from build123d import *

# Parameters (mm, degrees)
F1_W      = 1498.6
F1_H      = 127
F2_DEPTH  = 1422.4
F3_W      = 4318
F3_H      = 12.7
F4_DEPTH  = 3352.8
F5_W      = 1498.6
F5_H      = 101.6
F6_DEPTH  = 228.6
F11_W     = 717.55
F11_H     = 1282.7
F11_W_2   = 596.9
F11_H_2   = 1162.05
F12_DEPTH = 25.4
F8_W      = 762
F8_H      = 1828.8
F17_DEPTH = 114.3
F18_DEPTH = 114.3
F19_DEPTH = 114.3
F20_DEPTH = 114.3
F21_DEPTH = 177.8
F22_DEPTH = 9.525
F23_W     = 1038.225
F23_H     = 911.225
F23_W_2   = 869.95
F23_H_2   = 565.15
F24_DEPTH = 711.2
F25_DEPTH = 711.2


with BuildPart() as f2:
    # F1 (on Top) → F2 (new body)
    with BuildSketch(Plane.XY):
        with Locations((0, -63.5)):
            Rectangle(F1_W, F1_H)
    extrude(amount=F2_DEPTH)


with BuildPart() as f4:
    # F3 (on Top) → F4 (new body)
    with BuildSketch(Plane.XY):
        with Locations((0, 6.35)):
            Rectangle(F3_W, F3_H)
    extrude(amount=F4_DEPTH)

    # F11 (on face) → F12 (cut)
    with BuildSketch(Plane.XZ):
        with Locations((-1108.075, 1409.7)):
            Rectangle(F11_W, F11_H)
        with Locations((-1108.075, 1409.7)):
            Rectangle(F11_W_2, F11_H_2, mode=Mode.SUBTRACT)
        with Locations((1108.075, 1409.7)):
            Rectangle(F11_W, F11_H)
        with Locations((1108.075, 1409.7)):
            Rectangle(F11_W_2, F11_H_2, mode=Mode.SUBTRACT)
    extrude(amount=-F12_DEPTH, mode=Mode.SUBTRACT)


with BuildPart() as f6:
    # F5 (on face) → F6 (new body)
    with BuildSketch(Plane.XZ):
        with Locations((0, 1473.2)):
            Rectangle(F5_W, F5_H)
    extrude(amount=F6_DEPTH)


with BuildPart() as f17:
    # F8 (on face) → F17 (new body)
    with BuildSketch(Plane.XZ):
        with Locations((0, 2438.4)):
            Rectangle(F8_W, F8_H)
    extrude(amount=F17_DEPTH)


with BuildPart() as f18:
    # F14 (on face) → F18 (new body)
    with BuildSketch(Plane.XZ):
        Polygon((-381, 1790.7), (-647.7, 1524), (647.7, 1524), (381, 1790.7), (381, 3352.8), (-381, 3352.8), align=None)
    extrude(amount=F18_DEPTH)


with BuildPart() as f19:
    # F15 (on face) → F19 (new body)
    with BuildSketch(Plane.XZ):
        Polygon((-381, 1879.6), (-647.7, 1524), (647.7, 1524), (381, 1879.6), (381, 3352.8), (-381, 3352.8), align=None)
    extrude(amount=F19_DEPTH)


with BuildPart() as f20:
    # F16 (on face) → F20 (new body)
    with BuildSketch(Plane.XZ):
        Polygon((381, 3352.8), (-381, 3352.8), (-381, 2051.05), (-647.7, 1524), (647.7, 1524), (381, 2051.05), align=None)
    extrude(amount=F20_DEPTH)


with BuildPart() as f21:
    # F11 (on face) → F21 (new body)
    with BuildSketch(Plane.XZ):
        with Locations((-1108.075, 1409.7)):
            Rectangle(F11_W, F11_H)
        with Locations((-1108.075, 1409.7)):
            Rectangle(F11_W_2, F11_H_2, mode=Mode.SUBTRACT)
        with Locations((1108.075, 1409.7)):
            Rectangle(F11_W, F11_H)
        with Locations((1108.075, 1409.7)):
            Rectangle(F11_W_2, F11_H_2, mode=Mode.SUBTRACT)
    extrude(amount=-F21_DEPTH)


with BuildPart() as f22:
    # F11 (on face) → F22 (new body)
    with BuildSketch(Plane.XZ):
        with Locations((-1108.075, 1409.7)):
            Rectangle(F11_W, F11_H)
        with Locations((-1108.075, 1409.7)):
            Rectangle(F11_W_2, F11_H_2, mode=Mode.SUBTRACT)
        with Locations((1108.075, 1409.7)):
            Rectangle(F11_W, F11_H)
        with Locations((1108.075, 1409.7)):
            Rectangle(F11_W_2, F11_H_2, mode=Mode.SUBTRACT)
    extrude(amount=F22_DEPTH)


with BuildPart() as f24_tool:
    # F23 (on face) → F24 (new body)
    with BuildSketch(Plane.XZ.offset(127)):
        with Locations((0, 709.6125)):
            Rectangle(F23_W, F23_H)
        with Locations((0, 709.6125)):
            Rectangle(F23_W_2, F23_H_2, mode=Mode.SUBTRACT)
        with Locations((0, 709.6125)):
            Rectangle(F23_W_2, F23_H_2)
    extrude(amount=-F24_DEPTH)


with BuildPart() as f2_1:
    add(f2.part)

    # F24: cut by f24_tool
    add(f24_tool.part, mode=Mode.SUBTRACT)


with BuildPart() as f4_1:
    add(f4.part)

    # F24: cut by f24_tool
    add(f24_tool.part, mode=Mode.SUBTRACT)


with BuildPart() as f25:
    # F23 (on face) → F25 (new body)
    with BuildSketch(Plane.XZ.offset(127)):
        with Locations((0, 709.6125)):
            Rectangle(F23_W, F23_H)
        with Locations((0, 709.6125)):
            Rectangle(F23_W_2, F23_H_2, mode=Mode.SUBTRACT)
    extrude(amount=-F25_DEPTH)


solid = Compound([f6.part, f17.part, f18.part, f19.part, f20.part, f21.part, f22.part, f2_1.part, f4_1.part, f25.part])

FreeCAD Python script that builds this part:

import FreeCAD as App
import Part
import Sketcher

V = App.Vector
Q = App.Units.Quantity

doc = App.newDocument("Part")
body = doc.addObject("PartDesign::Body", "Body")

# Sketch on XY plane
sketch1 = body.newObject("Sketcher::SketchObject", "Sketch")
sketch1.AttachmentSupport = (doc.getObject("XY_Plane"), [""])
sketch1.MapMode = "FlatFace"
sketch1.addGeometry([
    Part.LineSegment(V(-749.3, 0, 0), V(-749.3, -127, 0)),
    Part.LineSegment(V(-749.3, -127, 0), V(749.3, -127, 0)),
    Part.LineSegment(V(749.3, -127, 0), V(749.3, 0, 0)),
    Part.LineSegment(V(749.3, 0, 0), V(-749.3, 0, 0)),
], False)
sketch1.addConstraint([
    Sketcher.Constraint("Coincident", 0, 2, 1, 1),
    Sketcher.Constraint("Coincident", 1, 2, 2, 1),
    Sketcher.Constraint("Coincident", 2, 2, 3, 1),
    Sketcher.Constraint("Coincident", 3, 2, 0, 1),
    Sketcher.Constraint("Vertical", 0),
    Sketcher.Constraint("Horizontal", 1),
    Sketcher.Constraint("Vertical", 2),
    Sketcher.Constraint("Horizontal", 3),
    Sketcher.Constraint("Symmetric", 2, 2, 3, 2, -1, 1),
    Sketcher.Constraint("DistanceX", 1, 1, 1, 2, Q("59 in")),
    Sketcher.Constraint("DistanceY", 0, 2, 0, 1, Q("5 in")),
])
pad1 = body.newObject("PartDesign::Pad", "Pad")
pad1.Profile = sketch1
pad1.Length = Q("56 in")
body2 = doc.addObject("PartDesign::Body", "Body001")
body2.AllowCompound = True

# Sketch on XY plane
sketch2 = body2.newObject("Sketcher::SketchObject", "Sketch001")
sketch2.AttachmentSupport = (doc.getObject("XY_Plane001"), [""])
sketch2.MapMode = "FlatFace"
sketch2.addGeometry([
    Part.LineSegment(V(-2159, 12.7, 0), V(-2159, 0, 0)),
    Part.LineSegment(V(-2159, 0, 0), V(2159, 0, 0)),
    Part.LineSegment(V(2159, 0, 0), V(2159, 12.7, 0)),
    Part.LineSegment(V(2159, 12.7, 0), V(-2159, 12.7, 0)),
], False)
sketch2.addConstraint([
    Sketcher.Constraint("Coincident", 0, 2, 1, 1),
    Sketcher.Constraint("Coincident", 1, 2, 2, 1),
    Sketcher.Constraint("Coincident", 2, 2, 3, 1),
    Sketcher.Constraint("Coincident", 3, 2, 0, 1),
    Sketcher.Constraint("Vertical", 0),
    Sketcher.Constraint("Horizontal", 1),
    Sketcher.Constraint("Vertical", 2),
    Sketcher.Constraint("Horizontal", 3),
    Sketcher.Constraint("Symmetric", 0, 2, 1, 2, -1, 1),
    Sketcher.Constraint("DistanceX", 1, 1, 1, 2, Q("170 in")),
    Sketcher.Constraint("DistanceY", 0, 2, 0, 1, Q("0.5 in")),
])
pad2 = body2.newObject("PartDesign::Pad", "Pad001")
pad2.Profile = sketch2
pad2.Length = Q("132 in")

# Sketch on XZ plane
sketch3 = body2.newObject("Sketcher::SketchObject", "Sketch002")
sketch3.AttachmentSupport = (doc.getObject("XZ_Plane001"), [""])
sketch3.MapMode = "FlatFace"
sketch3.addGeometry([
    Part.LineSegment(V(-1466.85, 2051.05, 0), V(-1466.85, 768.35, 0)),  # 0
    Part.LineSegment(V(-1466.85, 768.35, 0), V(-749.3, 768.35, 0)),  # 1
    Part.LineSegment(V(-749.3, 768.35, 0), V(-749.3, 2051.05, 0)),  # 2
    Part.LineSegment(V(-749.3, 2051.05, 0), V(-1466.85, 2051.05, 0)),  # 3
    Part.LineSegment(V(-809.625, 828.675, 0), V(-1406.525, 828.675, 0)),  # 4
    Part.LineSegment(V(-1406.525, 828.675, 0), V(-1406.525, 1990.725, 0)),  # 5
    Part.LineSegment(V(-1406.525, 1990.725, 0), V(-809.625, 1990.725, 0)),  # 6
    Part.LineSegment(V(-809.625, 1990.725, 0), V(-809.625, 828.675, 0)),  # 7
    Part.LineSegment(V(749.3, 2051.05, 0), V(749.3, 768.35, 0)),  # 8
    Part.LineSegment(V(749.3, 768.35, 0), V(1466.85, 768.35, 0)),  # 9
    Part.LineSegment(V(1466.85, 768.35, 0), V(1466.85, 2051.05, 0)),  # 10
    Part.LineSegment(V(1466.85, 2051.05, 0), V(749.3, 2051.05, 0)),  # 11
    Part.LineSegment(V(1406.525, 828.675, 0), V(809.625, 828.675, 0)),  # 12
    Part.LineSegment(V(809.625, 828.675, 0), V(809.625, 1990.725, 0)),  # 13
    Part.LineSegment(V(809.625, 1990.725, 0), V(1406.525, 1990.725, 0)),  # 14
    Part.LineSegment(V(1406.525, 1990.725, 0), V(1406.525, 828.675, 0)),  # 15
], False)
sketch3.addConstraint([
    Sketcher.Constraint("Coincident", 0, 2, 1, 1),
    Sketcher.Constraint("Coincident", 1, 2, 2, 1),
    Sketcher.Constraint("Coincident", 2, 2, 3, 1),
    Sketcher.Constraint("Coincident", 3, 2, 0, 1),
    Sketcher.Constraint("Coincident", 4, 2, 5, 1),
    Sketcher.Constraint("Coincident", 5, 2, 6, 1),
    Sketcher.Constraint("Coincident", 6, 2, 7, 1),
    Sketcher.Constraint("Coincident", 7, 2, 4, 1),
    Sketcher.Constraint("Coincident", 8, 2, 9, 1),
    Sketcher.Constraint("Coincident", 9, 2, 10, 1),
    Sketcher.Constraint("Coincident", 10, 2, 11, 1),
    Sketcher.Constraint("Coincident", 11, 2, 8, 1),
    Sketcher.Constraint("Coincident", 12, 2, 13, 1),
    Sketcher.Constraint("Coincident", 13, 2, 14, 1),
    Sketcher.Constraint("Coincident", 14, 2, 15, 1),
    Sketcher.Constraint("Coincident", 15, 2, 12, 1),
    Sketcher.Constraint("Vertical", 0),
    Sketcher.Constraint("Horizontal", 1),
    Sketcher.Constraint("Vertical", 2),
    Sketcher.Constraint("Horizontal", 3),
    Sketcher.Constraint("Horizontal", 4),
    Sketcher.Constraint("Vertical", 5),
    Sketcher.Constraint("Horizontal", 6),
    Sketcher.Constraint("Vertical", 7),
    Sketcher.Constraint("Vertical", 8),
    Sketcher.Constraint("Horizontal", 9),
    Sketcher.Constraint("Vertical", 10),
    Sketcher.Constraint("Horizontal", 11),
    Sketcher.Constraint("Horizontal", 12),
    Sketcher.Constraint("Vertical", 13),
    Sketcher.Constraint("Horizontal", 14),
    Sketcher.Constraint("Vertical", 15),
    Sketcher.Constraint("Symmetric", 1, 2, 8, 2, -2),
    Sketcher.Constraint("Symmetric", 3, 2, 10, 2, -2),
    Sketcher.Constraint("Symmetric", 7, 2, 12, 2, -2),
    Sketcher.Constraint("Symmetric", 5, 2, 14, 2, -2),
    Sketcher.Constraint("DistanceX", 4, 2, 4, 1, Q("23.5 in")),
    Sketcher.Constraint("DistanceY", 0, 2, 0, 1, Q("50.5 in")),
    Sketcher.Constraint("DistanceX", 1, 2, 8, 2, Q("59 in")),
    Sketcher.Constraint("DistanceX", 1, 1, 1, 2, Q("28.25 in")),
    Sketcher.Constraint("DistanceY", 5, 1, 5, 2, Q("45.75 in")),
    Sketcher.Constraint("DistanceY", -1, 1, 0, 2, Q("30.25 in")),
    Sketcher.Constraint("DistanceX", 4, 2, -1, 1, Q("55.375 in")),
    Sketcher.Constraint("DistanceY", -1, 1, 4, 2, Q("32.625 in")),
])
pocket1 = body2.newObject("PartDesign::Pocket", "Pocket")
pocket1.Profile = sketch3
pocket1.Length = Q("1 in")
body3 = doc.addObject("PartDesign::Body", "Body002")

# Sketch on XZ plane
sketch4 = body3.newObject("Sketcher::SketchObject", "Sketch003")
sketch4.AttachmentSupport = (doc.getObject("XZ_Plane002"), [""])
sketch4.MapMode = "FlatFace"
sketch4.addGeometry([
    Part.LineSegment(V(-749.3, 1524, 0), V(-749.3, 1422.4, 0)),
    Part.LineSegment(V(-749.3, 1422.4, 0), V(749.3, 1422.4, 0)),
    Part.LineSegment(V(749.3, 1422.4, 0), V(749.3, 1524, 0)),
    Part.LineSegment(V(749.3, 1524, 0), V(-749.3, 1524, 0)),
], False)
sketch4.addConstraint([
    Sketcher.Constraint("Coincident", 0, 2, 1, 1),
    Sketcher.Constraint("Coincident", 1, 2, 2, 1),
    Sketcher.Constraint("Coincident", 2, 2, 3, 1),
    Sketcher.Constraint("Coincident", 3, 2, 0, 1),
    Sketcher.Constraint("Vertical", 0),
    Sketcher.Constraint("Horizontal", 1),
    Sketcher.Constraint("Vertical", 2),
    Sketcher.Constraint("Horizontal", 3),
    Sketcher.Constraint("DistanceX", 1, 1, 1, 2, Q("59 in")),
    Sketcher.Constraint("DistanceY", 0, 2, 0, 1, Q("4 in")),
    Sketcher.Constraint("DistanceY", -1, 1, 0, 2, Q("56 in")),
    Sketcher.Constraint("DistanceX", 0, 2, -1, 1, Q("29.5 in")),
])
pad3 = body3.newObject("PartDesign::Pad", "Pad002")
pad3.Profile = sketch4
pad3.Length = Q("9 in")
body4 = doc.addObject("PartDesign::Body", "Body003")

# Sketch on XZ plane
sketch5 = body4.newObject("Sketcher::SketchObject", "Sketch004")
sketch5.AttachmentSupport = (doc.getObject("XZ_Plane003"), [""])
sketch5.MapMode = "FlatFace"
sketch5.addGeometry([
    Part.LineSegment(V(-381, 3352.8, 0), V(-381, 1524, 0)),
    Part.LineSegment(V(-381, 1524, 0), V(381, 1524, 0)),
    Part.LineSegment(V(381, 1524, 0), V(381, 3352.8, 0)),
    Part.LineSegment(V(381, 3352.8, 0), V(-381, 3352.8, 0)),
], False)
sketch5.addConstraint([
    Sketcher.Constraint("Coincident", 0, 2, 1, 1),
    Sketcher.Constraint("Coincident", 1, 2, 2, 1),
    Sketcher.Constraint("Coincident", 2, 2, 3, 1),
    Sketcher.Constraint("Coincident", 3, 2, 0, 1),
    Sketcher.Constraint("Vertical", 0),
    Sketcher.Constraint("Horizontal", 1),
    Sketcher.Constraint("Vertical", 2),
    Sketcher.Constraint("Horizontal", 3),
    Sketcher.Constraint("DistanceX", 1, 1, 1, 2, Q("30 in")),
    Sketcher.Constraint("DistanceY", 0, 2, 0, 1, Q("72 in")),
    Sketcher.Constraint("DistanceX", 0, 2, -1, 1, Q("15 in")),
    Sketcher.Constraint("DistanceY", -1, 1, 0, 2, Q("60 in")),
])
pad4 = body4.newObject("PartDesign::Pad", "Pad003")
pad4.Profile = sketch5
pad4.Length = Q("4.5 in")
body5 = doc.addObject("PartDesign::Body", "Body004")

# Sketch on XZ plane
sketch6 = body5.newObject("Sketcher::SketchObject", "Sketch005")
sketch6.AttachmentSupport = (doc.getObject("XZ_Plane004"), [""])
sketch6.MapMode = "FlatFace"
sketch6.addGeometry([
    Part.LineSegment(V(-381, 1790.7, 0), V(-647.7, 1524, 0)),  # 0
    Part.LineSegment(V(-647.7, 1524, 0), V(647.7, 1524, 0)),  # 1
    Part.LineSegment(V(647.7, 1524, 0), V(381, 1790.7, 0)),  # 2
    Part.LineSegment(V(381, 1790.7, 0), V(381, 3352.8, 0)),  # 3
    Part.LineSegment(V(381, 3352.8, 0), V(-381, 3352.8, 0)),  # 4
    Part.LineSegment(V(-381, 3352.8, 0), V(-381, 1790.7, 0)),  # 5
], False)
sketch6.addConstraint([
    Sketcher.Constraint("Coincident", 0, 2, 1, 1),
    Sketcher.Constraint("Coincident", 1, 2, 2, 1),
    Sketcher.Constraint("Coincident", 2, 2, 3, 1),
    Sketcher.Constraint("Coincident", 3, 2, 4, 1),
    Sketcher.Constraint("Coincident", 4, 2, 5, 1),
    Sketcher.Constraint("Coincident", 5, 2, 0, 1),
    Sketcher.Constraint("Horizontal", 1),
    Sketcher.Constraint("Vertical", 3),
    Sketcher.Constraint("Horizontal", 4),
    Sketcher.Constraint("Vertical", 5),
    Sketcher.Constraint("Symmetric", 2, 2, 5, 2, -2),
    Sketcher.Constraint("Perpendicular", 0, 2),
    Sketcher.Constraint("Equal", 0, 2),
    Sketcher.Constraint("DistanceX", 1, 1, 1, 2, Q("51 in")),
    Sketcher.Constraint("DistanceX", 4, 2, 4, 1, Q("30 in")),
    Sketcher.Constraint("DistanceY", 3, 1, 3, 2, Q("61.5 in")),
    Sketcher.Constraint("DistanceY", -1, 1, 0, 2, Q("60 in")),
])
pad5 = body5.newObject("PartDesign::Pad", "Pad004")
pad5.Profile = sketch6
pad5.Length = Q("4.5 in")
body6 = doc.addObject("PartDesign::Body", "Body005")

# Sketch on XZ plane
sketch7 = body6.newObject("Sketcher::SketchObject", "Sketch006")
sketch7.AttachmentSupport = (doc.getObject("XZ_Plane005"), [""])
sketch7.MapMode = "FlatFace"
sketch7.addGeometry([
    Part.LineSegment(V(-381, 1879.6, 0), V(-647.7, 1524, 0)),  # 0
    Part.LineSegment(V(-647.7, 1524, 0), V(647.7, 1524, 0)),  # 1
    Part.LineSegment(V(647.7, 1524, 0), V(381, 1879.6, 0)),  # 2
    Part.LineSegment(V(381, 1879.6, 0), V(381, 3352.8, 0)),  # 3
    Part.LineSegment(V(381, 3352.8, 0), V(-381, 3352.8, 0)),  # 4
    Part.LineSegment(V(-381, 3352.8, 0), V(-381, 1879.6, 0)),  # 5
], False)
sketch7.addConstraint([
    Sketcher.Constraint("Coincident", 0, 2, 1, 1),
    Sketcher.Constraint("Coincident", 1, 2, 2, 1),
    Sketcher.Constraint("Coincident", 2, 2, 3, 1),
    Sketcher.Constraint("Coincident", 3, 2, 4, 1),
    Sketcher.Constraint("Coincident", 4, 2, 5, 1),
    Sketcher.Constraint("Coincident", 5, 2, 0, 1),
    Sketcher.Constraint("Horizontal", 1),
    Sketcher.Constraint("Vertical", 3),
    Sketcher.Constraint("Horizontal", 4),
    Sketcher.Constraint("Vertical", 5),
    Sketcher.Constraint("Symmetric", 2, 2, 5, 2, -2),
    Sketcher.Constraint("Equal", 0, 2),
    Sketcher.Constraint("DistanceX", 1, 1, 1, 2, Q("51 in")),
    Sketcher.Constraint("DistanceX", 4, 2, 4, 1, Q("30 in")),
    Sketcher.Constraint("DistanceY", 3, 1, 3, 2, Q("58 in")),
    Sketcher.Constraint("DistanceY", -1, 1, 0, 2, Q("60 in")),
    Sketcher.Constraint("DistanceY", -1, 1, 2, 2, Q("74 in")),
])
pad6 = body6.newObject("PartDesign::Pad", "Pad005")
pad6.Profile = sketch7
pad6.Length = Q("4.5 in")
body7 = doc.addObject("PartDesign::Body", "Body006")

# Sketch on XZ plane
sketch8 = body7.newObject("Sketcher::SketchObject", "Sketch007")
sketch8.AttachmentSupport = (doc.getObject("XZ_Plane006"), [""])
sketch8.MapMode = "FlatFace"
sketch8.addGeometry([
    Part.LineSegment(V(381, 3352.8, 0), V(-381, 3352.8, 0)),  # 0
    Part.LineSegment(V(-381, 3352.8, 0), V(-381, 2051.05, 0)),  # 1
    Part.LineSegment(V(-381, 2051.05, 0), V(-647.7, 1524, 0)),  # 2
    Part.LineSegment(V(-647.7, 1524, 0), V(647.7, 1524, 0)),  # 3
    Part.LineSegment(V(647.7, 1524, 0), V(381, 2051.05, 0)),  # 4
    Part.LineSegment(V(381, 2051.05, 0), V(381, 3352.8, 0)),  # 5
], False)
sketch8.addConstraint([
    Sketcher.Constraint("Coincident", 0, 2, 1, 1),
    Sketcher.Constraint("Coincident", 1, 2, 2, 1),
    Sketcher.Constraint("Coincident", 2, 2, 3, 1),
    Sketcher.Constraint("Coincident", 3, 2, 4, 1),
    Sketcher.Constraint("Coincident", 4, 2, 5, 1),
    Sketcher.Constraint("Coincident", 5, 2, 0, 1),
    Sketcher.Constraint("Horizontal", 0),
    Sketcher.Constraint("Vertical", 1),
    Sketcher.Constraint("Horizontal", 3),
    Sketcher.Constraint("Vertical", 5),
    Sketcher.Constraint("Symmetric", 1, 2, 4, 2, -2),
    Sketcher.Constraint("Equal", 2, 4),
    Sketcher.Constraint("DistanceX", 0, 2, 0, 1, Q("30 in")),
    Sketcher.Constraint("DistanceX", 3, 1, 3, 2, Q("51 in")),
    Sketcher.Constraint("DistanceY", -1, 1, 0, 2, Q("132 in")),
    Sketcher.Constraint("DistanceY", -1, 1, 2, 2, Q("60 in")),
    Sketcher.Constraint("DistanceY", 1, 2, 1, 1, Q("51.25 in")),
])
pad7 = body7.newObject("PartDesign::Pad", "Pad006")
pad7.Profile = sketch8
pad7.Length = Q("4.5 in")
body8 = doc.addObject("PartDesign::Body", "Body007")
body8.AllowCompound = True

# Sketch on XZ plane
sketch9 = body8.newObject("Sketcher::SketchObject", "Sketch008")
sketch9.AttachmentSupport = (doc.getObject("XZ_Plane007"), [""])
sketch9.MapMode = "FlatFace"
sketch9.addGeometry([
    Part.LineSegment(V(-1466.85, 2051.05, 0), V(-1466.85, 768.35, 0)),  # 0
    Part.LineSegment(V(-1466.85, 768.35, 0), V(-749.3, 768.35, 0)),  # 1
    Part.LineSegment(V(-749.3, 768.35, 0), V(-749.3, 2051.05, 0)),  # 2
    Part.LineSegment(V(-749.3, 2051.05, 0), V(-1466.85, 2051.05, 0)),  # 3
    Part.LineSegment(V(-809.625, 828.675, 0), V(-1406.525, 828.675, 0)),  # 4
    Part.LineSegment(V(-1406.525, 828.675, 0), V(-1406.525, 1990.725, 0)),  # 5
    Part.LineSegment(V(-1406.525, 1990.725, 0), V(-809.625, 1990.725, 0)),  # 6
    Part.LineSegment(V(-809.625, 1990.725, 0), V(-809.625, 828.675, 0)),  # 7
    Part.LineSegment(V(749.3, 2051.05, 0), V(749.3, 768.35, 0)),  # 8
    Part.LineSegment(V(749.3, 768.35, 0), V(1466.85, 768.35, 0)),  # 9
    Part.LineSegment(V(1466.85, 768.35, 0), V(1466.85, 2051.05, 0)),  # 10
    Part.LineSegment(V(1466.85, 2051.05, 0), V(749.3, 2051.05, 0)),  # 11
    Part.LineSegment(V(1406.525, 828.675, 0), V(809.625, 828.675, 0)),  # 12
    Part.LineSegment(V(809.625, 828.675, 0), V(809.625, 1990.725, 0)),  # 13
    Part.LineSegment(V(809.625, 1990.725, 0), V(1406.525, 1990.725, 0)),  # 14
    Part.LineSegment(V(1406.525, 1990.725, 0), V(1406.525, 828.675, 0)),  # 15
], False)
sketch9.addConstraint([
    Sketcher.Constraint("Coincident", 0, 2, 1, 1),
    Sketcher.Constraint("Coincident", 1, 2, 2, 1),
    Sketcher.Constraint("Coincident", 2, 2, 3, 1),
    Sketcher.Constraint("Coincident", 3, 2, 0, 1),
    Sketcher.Constraint("Coincident", 4, 2, 5, 1),
    Sketcher.Constraint("Coincident", 5, 2, 6, 1),
    Sketcher.Constraint("Coincident", 6, 2, 7, 1),
    Sketcher.Constraint("Coincident", 7, 2, 4, 1),
    Sketcher.Constraint("Coincident", 8, 2, 9, 1),
    Sketcher.Constraint("Coincident", 9, 2, 10, 1),
    Sketcher.Constraint("Coincident", 10, 2, 11, 1),
    Sketcher.Constraint("Coincident", 11, 2, 8, 1),
    Sketcher.Constraint("Coincident", 12, 2, 13, 1),
    Sketcher.Constraint("Coincident", 13, 2, 14, 1),
    Sketcher.Constraint("Coincident", 14, 2, 15, 1),
    Sketcher.Constraint("Coincident", 15, 2, 12, 1),
    Sketcher.Constraint("Vertical", 0),
    Sketcher.Constraint("Horizontal", 1),
    Sketcher.Constraint("Vertical", 2),
    Sketcher.Constraint("Horizontal", 3),
    Sketcher.Constraint("Horizontal", 4),
    Sketcher.Constraint("Vertical", 5),
    Sketcher.Constraint("Horizontal", 6),
    Sketcher.Constraint("Vertical", 7),
    Sketcher.Constraint("Vertical", 8),
    Sketcher.Constraint("Horizontal", 9),
    Sketcher.Constraint("Vertical", 10),
    Sketcher.Constraint("Horizontal", 11),
    Sketcher.Constraint("Horizontal", 12),
    Sketcher.Constraint("Vertical", 13),
    Sketcher.Constraint("Horizontal", 14),
    Sketcher.Constraint("Vertical", 15),
    Sketcher.Constraint("Symmetric", 1, 2, 8, 2, -2),
    Sketcher.Constraint("Symmetric", 3, 2, 10, 2, -2),
    Sketcher.Constraint("Symmetric", 7, 2, 12, 2, -2),
    Sketcher.Constraint("Symmetric", 5, 2, 14, 2, -2),
    Sketcher.Constraint("DistanceX", 4, 2, 4, 1, Q("23.5 in")),
    Sketcher.Constraint("DistanceY", 0, 2, 0, 1, Q("50.5 in")),
    Sketcher.Constraint("DistanceX", 1, 2, 8, 2, Q("59 in")),
    Sketcher.Constraint("DistanceX", 1, 1, 1, 2, Q("28.25 in")),
    Sketcher.Constraint("DistanceY", 5, 1, 5, 2, Q("45.75 in")),
    Sketcher.Constraint("DistanceY", -1, 1, 0, 2, Q("30.25 in")),
    Sketcher.Constraint("DistanceX", 4, 2, -1, 1, Q("55.375 in")),
    Sketcher.Constraint("DistanceY", -1, 1, 4, 2, Q("32.625 in")),
])
pad8 = body8.newObject("PartDesign::Pad", "Pad007")
pad8.Profile = sketch9
pad8.Length = Q("7 in")
pad8.Reversed = True
body9 = doc.addObject("PartDesign::Body", "Body008")
body9.AllowCompound = True

# Sketch on XZ plane
sketch10 = body9.newObject("Sketcher::SketchObject", "Sketch009")
sketch10.AttachmentSupport = (doc.getObject("XZ_Plane008"), [""])
sketch10.MapMode = "FlatFace"
sketch10.addGeometry([
    Part.LineSegment(V(-1466.85, 2051.05, 0), V(-1466.85, 768.35, 0)),  # 0
    Part.LineSegment(V(-1466.85, 768.35, 0), V(-749.3, 768.35, 0)),  # 1
    Part.LineSegment(V(-749.3, 768.35, 0), V(-749.3, 2051.05, 0)),  # 2
    Part.LineSegment(V(-749.3, 2051.05, 0), V(-1466.85, 2051.05, 0)),  # 3
    Part.LineSegment(V(-809.625, 828.675, 0), V(-1406.525, 828.675, 0)),  # 4
    Part.LineSegment(V(-1406.525, 828.675, 0), V(-1406.525, 1990.725, 0)),  # 5
    Part.LineSegment(V(-1406.525, 1990.725, 0), V(-809.625, 1990.725, 0)),  # 6
    Part.LineSegment(V(-809.625, 1990.725, 0), V(-809.625, 828.675, 0)),  # 7
    Part.LineSegment(V(749.3, 2051.05, 0), V(749.3, 768.35, 0)),  # 8
    Part.LineSegment(V(749.3, 768.35, 0), V(1466.85, 768.35, 0)),  # 9
    Part.LineSegment(V(1466.85, 768.35, 0), V(1466.85, 2051.05, 0)),  # 10
    Part.LineSegment(V(1466.85, 2051.05, 0), V(749.3, 2051.05, 0)),  # 11
    Part.LineSegment(V(1406.525, 828.675, 0), V(809.625, 828.675, 0)),  # 12
    Part.LineSegment(V(809.625, 828.675, 0), V(809.625, 1990.725, 0)),  # 13
    Part.LineSegment(V(809.625, 1990.725, 0), V(1406.525, 1990.725, 0)),  # 14
    Part.LineSegment(V(1406.525, 1990.725, 0), V(1406.525, 828.675, 0)),  # 15
], False)
sketch10.addConstraint([
    Sketcher.Constraint("Coincident", 0, 2, 1, 1),
    Sketcher.Constraint("Coincident", 1, 2, 2, 1),
    Sketcher.Constraint("Coincident", 2, 2, 3, 1),
    Sketcher.Constraint("Coincident", 3, 2, 0, 1),
    Sketcher.Constraint("Coincident", 4, 2, 5, 1),
    Sketcher.Constraint("Coincident", 5, 2, 6, 1),
    Sketcher.Constraint("Coincident", 6, 2, 7, 1),
    Sketcher.Constraint("Coincident", 7, 2, 4, 1),
    Sketcher.Constraint("Coincident", 8, 2, 9, 1),
    Sketcher.Constraint("Coincident", 9, 2, 10, 1),
    Sketcher.Constraint("Coincident", 10, 2, 11, 1),
    Sketcher.Constraint("Coincident", 11, 2, 8, 1),
    Sketcher.Constraint("Coincident", 12, 2, 13, 1),
    Sketcher.Constraint("Coincident", 13, 2, 14, 1),
    Sketcher.Constraint("Coincident", 14, 2, 15, 1),
    Sketcher.Constraint("Coincident", 15, 2, 12, 1),
    Sketcher.Constraint("Vertical", 0),
    Sketcher.Constraint("Horizontal", 1),
    Sketcher.Constraint("Vertical", 2),
    Sketcher.Constraint("Horizontal", 3),
    Sketcher.Constraint("Horizontal", 4),
    Sketcher.Constraint("Vertical", 5),
    Sketcher.Constraint("Horizontal", 6),
    Sketcher.Constraint("Vertical", 7),
    Sketcher.Constraint("Vertical", 8),
    Sketcher.Constraint("Horizontal", 9),
    Sketcher.Constraint("Vertical", 10),
    Sketcher.Constraint("Horizontal", 11),
    Sketcher.Constraint("Horizontal", 12),
    Sketcher.Constraint("Vertical", 13),
    Sketcher.Constraint("Horizontal", 14),
    Sketcher.Constraint("Vertical", 15),
    Sketcher.Constraint("Symmetric", 1, 2, 8, 2, -2),
    Sketcher.Constraint("Symmetric", 3, 2, 10, 2, -2),
    Sketcher.Constraint("Symmetric", 7, 2, 12, 2, -2),
    Sketcher.Constraint("Symmetric", 5, 2, 14, 2, -2),
    Sketcher.Constraint("DistanceX", 4, 2, 4, 1, Q("23.5 in")),
    Sketcher.Constraint("DistanceY", 0, 2, 0, 1, Q("50.5 in")),
    Sketcher.Constraint("DistanceX", 1, 2, 8, 2, Q("59 in")),
    Sketcher.Constraint("DistanceX", 1, 1, 1, 2, Q("28.25 in")),
    Sketcher.Constraint("DistanceY", 5, 1, 5, 2, Q("45.75 in")),
    Sketcher.Constraint("DistanceY", -1, 1, 0, 2, Q("30.25 in")),
    Sketcher.Constraint("DistanceX", 4, 2, -1, 1, Q("55.375 in")),
    Sketcher.Constraint("DistanceY", -1, 1, 4, 2, Q("32.625 in")),
])
pad9 = body9.newObject("PartDesign::Pad", "Pad008")
pad9.Profile = sketch10
pad9.Length = Q("0.375 in")
body10 = doc.addObject("PartDesign::Body", "Body009")

# Sketch on XZ plane
sketch11 = body10.newObject("Sketcher::SketchObject", "Sketch010")
sketch11.AttachmentSupport = (doc.getObject("XZ_Plane009"), [""])
sketch11.MapMode = "FlatFace"
sketch11.AttachmentOffset = App.Placement(V(0, 0, 5 * 25.4), App.Rotation())
sketch11.addGeometry([
    Part.LineSegment(V(-519.1125, 1165.225, 0), V(-519.1125, 254, 0)),
    Part.LineSegment(V(-519.1125, 254, 0), V(519.1125, 254, 0)),
    Part.LineSegment(V(519.1125, 254, 0), V(519.1125, 1165.225, 0)),
    Part.LineSegment(V(519.1125, 1165.225, 0), V(-519.1125, 1165.225, 0)),
], False)
sketch11.addConstraint([
    Sketcher.Constraint("Coincident", 0, 2, 1, 1),
    Sketcher.Constraint("Coincident", 1, 2, 2, 1),
    Sketcher.Constraint("Coincident", 2, 2, 3, 1),
    Sketcher.Constraint("Coincident", 3, 2, 0, 1),
    Sketcher.Constraint("Vertical", 0),
    Sketcher.Constraint("Horizontal", 1),
    Sketcher.Constraint("Vertical", 2),
    Sketcher.Constraint("Horizontal", 3),
    Sketcher.Constraint("DistanceY", -1, 1, 0, 2, Q("10 in")),
    Sketcher.Constraint("DistanceX", 1, 1, 1, 2, Q("40.875 in")),
    Sketcher.Constraint("DistanceY", 0, 2, 0, 1, Q("35.875 in")),
    Sketcher.Constraint("DistanceX", 0, 2, -1, 1, Q("20.4375 in")),
])
pad10 = body10.newObject("PartDesign::Pad", "Pad009")
pad10.Profile = sketch11
pad10.Length = Q("28 in")
pad10.Reversed = True
doc.recompute()

body11 = doc.addObject("PartDesign::Body", "Body010")
body11.BaseFeature = body10
boolean = body.newObject("PartDesign::Boolean", "Boolean")
boolean.Type = "Cut"
boolean.addObjects([body11])
doc.recompute()
body2.AllowCompound = True
doc.recompute()

boolean2 = body2.newObject("PartDesign::Boolean", "Boolean001")
boolean2.Type = "Cut"
boolean2.addObjects([body10])
body12 = doc.addObject("PartDesign::Body", "Body011")

# Sketch on XZ plane
sketch12 = body12.newObject("Sketcher::SketchObject", "Sketch011")
sketch12.AttachmentSupport = (doc.getObject("XZ_Plane011"), [""])
sketch12.MapMode = "FlatFace"
sketch12.AttachmentOffset = App.Placement(V(0, 0, 5 * 25.4), App.Rotation())
sketch12.addGeometry([
    Part.LineSegment(V(-519.1125, 1165.225, 0), V(-519.1125, 254, 0)),  # 0
    Part.LineSegment(V(-519.1125, 254, 0), V(519.1125, 254, 0)),  # 1
    Part.LineSegment(V(519.1125, 254, 0), V(519.1125, 1165.225, 0)),  # 2
    Part.LineSegment(V(519.1125, 1165.225, 0), V(-519.1125, 1165.225, 0)),  # 3
    Part.LineSegment(V(434.975, 427.0375, 0), V(-434.975, 427.0375, 0)),  # 4
    Part.LineSegment(V(-434.975, 427.0375, 0), V(-434.975, 992.1875, 0)),  # 5
    Part.LineSegment(V(-434.975, 992.1875, 0), V(434.975, 992.1875, 0)),  # 6
    Part.LineSegment(V(434.975, 992.1875, 0), V(434.975, 427.0375, 0)),  # 7
], False)
sketch12.addConstraint([
    Sketcher.Constraint("Coincident", 0, 2, 1, 1),
    Sketcher.Constraint("Coincident", 1, 2, 2, 1),
    Sketcher.Constraint("Coincident", 2, 2, 3, 1),
    Sketcher.Constraint("Coincident", 3, 2, 0, 1),
    Sketcher.Constraint("Coincident", 4, 2, 5, 1),
    Sketcher.Constraint("Coincident", 5, 2, 6, 1),
    Sketcher.Constraint("Coincident", 6, 2, 7, 1),
    Sketcher.Constraint("Coincident", 7, 2, 4, 1),
    Sketcher.Constraint("Vertical", 0),
    Sketcher.Constraint("Horizontal", 1),
    Sketcher.Constraint("Vertical", 2),
    Sketcher.Constraint("Horizontal", 3),
    Sketcher.Constraint("Horizontal", 4),
    Sketcher.Constraint("Vertical", 5),
    Sketcher.Constraint("Horizontal", 6),
    Sketcher.Constraint("Vertical", 7),
    Sketcher.Constraint("DistanceY", -1, 1, 0, 2, Q("10 in")),
    Sketcher.Constraint("DistanceX", 4, 2, 4, 1, Q("34.25 in")),
    Sketcher.Constraint("DistanceY", 5, 1, 5, 2, Q("22.25 in")),
    Sketcher.Constraint("DistanceX", 1, 1, 1, 2, Q("40.875 in")),
    Sketcher.Constraint("DistanceY", 0, 2, 0, 1, Q("35.875 in")),
    Sketcher.Constraint("DistanceX", 0, 2, -1, 1, Q("20.4375 in")),
    Sketcher.Constraint("DistanceX", 4, 2, -1, 1, Q("17.125 in")),
    Sketcher.Constraint("DistanceY", -1, 1, 4, 2, Q("16.8125 in")),
])
pad11 = body12.newObject("PartDesign::Pad", "Pad010")
pad11.Profile = sketch12
pad11.Length = Q("28 in")
pad11.Reversed = True

doc.recompute()
